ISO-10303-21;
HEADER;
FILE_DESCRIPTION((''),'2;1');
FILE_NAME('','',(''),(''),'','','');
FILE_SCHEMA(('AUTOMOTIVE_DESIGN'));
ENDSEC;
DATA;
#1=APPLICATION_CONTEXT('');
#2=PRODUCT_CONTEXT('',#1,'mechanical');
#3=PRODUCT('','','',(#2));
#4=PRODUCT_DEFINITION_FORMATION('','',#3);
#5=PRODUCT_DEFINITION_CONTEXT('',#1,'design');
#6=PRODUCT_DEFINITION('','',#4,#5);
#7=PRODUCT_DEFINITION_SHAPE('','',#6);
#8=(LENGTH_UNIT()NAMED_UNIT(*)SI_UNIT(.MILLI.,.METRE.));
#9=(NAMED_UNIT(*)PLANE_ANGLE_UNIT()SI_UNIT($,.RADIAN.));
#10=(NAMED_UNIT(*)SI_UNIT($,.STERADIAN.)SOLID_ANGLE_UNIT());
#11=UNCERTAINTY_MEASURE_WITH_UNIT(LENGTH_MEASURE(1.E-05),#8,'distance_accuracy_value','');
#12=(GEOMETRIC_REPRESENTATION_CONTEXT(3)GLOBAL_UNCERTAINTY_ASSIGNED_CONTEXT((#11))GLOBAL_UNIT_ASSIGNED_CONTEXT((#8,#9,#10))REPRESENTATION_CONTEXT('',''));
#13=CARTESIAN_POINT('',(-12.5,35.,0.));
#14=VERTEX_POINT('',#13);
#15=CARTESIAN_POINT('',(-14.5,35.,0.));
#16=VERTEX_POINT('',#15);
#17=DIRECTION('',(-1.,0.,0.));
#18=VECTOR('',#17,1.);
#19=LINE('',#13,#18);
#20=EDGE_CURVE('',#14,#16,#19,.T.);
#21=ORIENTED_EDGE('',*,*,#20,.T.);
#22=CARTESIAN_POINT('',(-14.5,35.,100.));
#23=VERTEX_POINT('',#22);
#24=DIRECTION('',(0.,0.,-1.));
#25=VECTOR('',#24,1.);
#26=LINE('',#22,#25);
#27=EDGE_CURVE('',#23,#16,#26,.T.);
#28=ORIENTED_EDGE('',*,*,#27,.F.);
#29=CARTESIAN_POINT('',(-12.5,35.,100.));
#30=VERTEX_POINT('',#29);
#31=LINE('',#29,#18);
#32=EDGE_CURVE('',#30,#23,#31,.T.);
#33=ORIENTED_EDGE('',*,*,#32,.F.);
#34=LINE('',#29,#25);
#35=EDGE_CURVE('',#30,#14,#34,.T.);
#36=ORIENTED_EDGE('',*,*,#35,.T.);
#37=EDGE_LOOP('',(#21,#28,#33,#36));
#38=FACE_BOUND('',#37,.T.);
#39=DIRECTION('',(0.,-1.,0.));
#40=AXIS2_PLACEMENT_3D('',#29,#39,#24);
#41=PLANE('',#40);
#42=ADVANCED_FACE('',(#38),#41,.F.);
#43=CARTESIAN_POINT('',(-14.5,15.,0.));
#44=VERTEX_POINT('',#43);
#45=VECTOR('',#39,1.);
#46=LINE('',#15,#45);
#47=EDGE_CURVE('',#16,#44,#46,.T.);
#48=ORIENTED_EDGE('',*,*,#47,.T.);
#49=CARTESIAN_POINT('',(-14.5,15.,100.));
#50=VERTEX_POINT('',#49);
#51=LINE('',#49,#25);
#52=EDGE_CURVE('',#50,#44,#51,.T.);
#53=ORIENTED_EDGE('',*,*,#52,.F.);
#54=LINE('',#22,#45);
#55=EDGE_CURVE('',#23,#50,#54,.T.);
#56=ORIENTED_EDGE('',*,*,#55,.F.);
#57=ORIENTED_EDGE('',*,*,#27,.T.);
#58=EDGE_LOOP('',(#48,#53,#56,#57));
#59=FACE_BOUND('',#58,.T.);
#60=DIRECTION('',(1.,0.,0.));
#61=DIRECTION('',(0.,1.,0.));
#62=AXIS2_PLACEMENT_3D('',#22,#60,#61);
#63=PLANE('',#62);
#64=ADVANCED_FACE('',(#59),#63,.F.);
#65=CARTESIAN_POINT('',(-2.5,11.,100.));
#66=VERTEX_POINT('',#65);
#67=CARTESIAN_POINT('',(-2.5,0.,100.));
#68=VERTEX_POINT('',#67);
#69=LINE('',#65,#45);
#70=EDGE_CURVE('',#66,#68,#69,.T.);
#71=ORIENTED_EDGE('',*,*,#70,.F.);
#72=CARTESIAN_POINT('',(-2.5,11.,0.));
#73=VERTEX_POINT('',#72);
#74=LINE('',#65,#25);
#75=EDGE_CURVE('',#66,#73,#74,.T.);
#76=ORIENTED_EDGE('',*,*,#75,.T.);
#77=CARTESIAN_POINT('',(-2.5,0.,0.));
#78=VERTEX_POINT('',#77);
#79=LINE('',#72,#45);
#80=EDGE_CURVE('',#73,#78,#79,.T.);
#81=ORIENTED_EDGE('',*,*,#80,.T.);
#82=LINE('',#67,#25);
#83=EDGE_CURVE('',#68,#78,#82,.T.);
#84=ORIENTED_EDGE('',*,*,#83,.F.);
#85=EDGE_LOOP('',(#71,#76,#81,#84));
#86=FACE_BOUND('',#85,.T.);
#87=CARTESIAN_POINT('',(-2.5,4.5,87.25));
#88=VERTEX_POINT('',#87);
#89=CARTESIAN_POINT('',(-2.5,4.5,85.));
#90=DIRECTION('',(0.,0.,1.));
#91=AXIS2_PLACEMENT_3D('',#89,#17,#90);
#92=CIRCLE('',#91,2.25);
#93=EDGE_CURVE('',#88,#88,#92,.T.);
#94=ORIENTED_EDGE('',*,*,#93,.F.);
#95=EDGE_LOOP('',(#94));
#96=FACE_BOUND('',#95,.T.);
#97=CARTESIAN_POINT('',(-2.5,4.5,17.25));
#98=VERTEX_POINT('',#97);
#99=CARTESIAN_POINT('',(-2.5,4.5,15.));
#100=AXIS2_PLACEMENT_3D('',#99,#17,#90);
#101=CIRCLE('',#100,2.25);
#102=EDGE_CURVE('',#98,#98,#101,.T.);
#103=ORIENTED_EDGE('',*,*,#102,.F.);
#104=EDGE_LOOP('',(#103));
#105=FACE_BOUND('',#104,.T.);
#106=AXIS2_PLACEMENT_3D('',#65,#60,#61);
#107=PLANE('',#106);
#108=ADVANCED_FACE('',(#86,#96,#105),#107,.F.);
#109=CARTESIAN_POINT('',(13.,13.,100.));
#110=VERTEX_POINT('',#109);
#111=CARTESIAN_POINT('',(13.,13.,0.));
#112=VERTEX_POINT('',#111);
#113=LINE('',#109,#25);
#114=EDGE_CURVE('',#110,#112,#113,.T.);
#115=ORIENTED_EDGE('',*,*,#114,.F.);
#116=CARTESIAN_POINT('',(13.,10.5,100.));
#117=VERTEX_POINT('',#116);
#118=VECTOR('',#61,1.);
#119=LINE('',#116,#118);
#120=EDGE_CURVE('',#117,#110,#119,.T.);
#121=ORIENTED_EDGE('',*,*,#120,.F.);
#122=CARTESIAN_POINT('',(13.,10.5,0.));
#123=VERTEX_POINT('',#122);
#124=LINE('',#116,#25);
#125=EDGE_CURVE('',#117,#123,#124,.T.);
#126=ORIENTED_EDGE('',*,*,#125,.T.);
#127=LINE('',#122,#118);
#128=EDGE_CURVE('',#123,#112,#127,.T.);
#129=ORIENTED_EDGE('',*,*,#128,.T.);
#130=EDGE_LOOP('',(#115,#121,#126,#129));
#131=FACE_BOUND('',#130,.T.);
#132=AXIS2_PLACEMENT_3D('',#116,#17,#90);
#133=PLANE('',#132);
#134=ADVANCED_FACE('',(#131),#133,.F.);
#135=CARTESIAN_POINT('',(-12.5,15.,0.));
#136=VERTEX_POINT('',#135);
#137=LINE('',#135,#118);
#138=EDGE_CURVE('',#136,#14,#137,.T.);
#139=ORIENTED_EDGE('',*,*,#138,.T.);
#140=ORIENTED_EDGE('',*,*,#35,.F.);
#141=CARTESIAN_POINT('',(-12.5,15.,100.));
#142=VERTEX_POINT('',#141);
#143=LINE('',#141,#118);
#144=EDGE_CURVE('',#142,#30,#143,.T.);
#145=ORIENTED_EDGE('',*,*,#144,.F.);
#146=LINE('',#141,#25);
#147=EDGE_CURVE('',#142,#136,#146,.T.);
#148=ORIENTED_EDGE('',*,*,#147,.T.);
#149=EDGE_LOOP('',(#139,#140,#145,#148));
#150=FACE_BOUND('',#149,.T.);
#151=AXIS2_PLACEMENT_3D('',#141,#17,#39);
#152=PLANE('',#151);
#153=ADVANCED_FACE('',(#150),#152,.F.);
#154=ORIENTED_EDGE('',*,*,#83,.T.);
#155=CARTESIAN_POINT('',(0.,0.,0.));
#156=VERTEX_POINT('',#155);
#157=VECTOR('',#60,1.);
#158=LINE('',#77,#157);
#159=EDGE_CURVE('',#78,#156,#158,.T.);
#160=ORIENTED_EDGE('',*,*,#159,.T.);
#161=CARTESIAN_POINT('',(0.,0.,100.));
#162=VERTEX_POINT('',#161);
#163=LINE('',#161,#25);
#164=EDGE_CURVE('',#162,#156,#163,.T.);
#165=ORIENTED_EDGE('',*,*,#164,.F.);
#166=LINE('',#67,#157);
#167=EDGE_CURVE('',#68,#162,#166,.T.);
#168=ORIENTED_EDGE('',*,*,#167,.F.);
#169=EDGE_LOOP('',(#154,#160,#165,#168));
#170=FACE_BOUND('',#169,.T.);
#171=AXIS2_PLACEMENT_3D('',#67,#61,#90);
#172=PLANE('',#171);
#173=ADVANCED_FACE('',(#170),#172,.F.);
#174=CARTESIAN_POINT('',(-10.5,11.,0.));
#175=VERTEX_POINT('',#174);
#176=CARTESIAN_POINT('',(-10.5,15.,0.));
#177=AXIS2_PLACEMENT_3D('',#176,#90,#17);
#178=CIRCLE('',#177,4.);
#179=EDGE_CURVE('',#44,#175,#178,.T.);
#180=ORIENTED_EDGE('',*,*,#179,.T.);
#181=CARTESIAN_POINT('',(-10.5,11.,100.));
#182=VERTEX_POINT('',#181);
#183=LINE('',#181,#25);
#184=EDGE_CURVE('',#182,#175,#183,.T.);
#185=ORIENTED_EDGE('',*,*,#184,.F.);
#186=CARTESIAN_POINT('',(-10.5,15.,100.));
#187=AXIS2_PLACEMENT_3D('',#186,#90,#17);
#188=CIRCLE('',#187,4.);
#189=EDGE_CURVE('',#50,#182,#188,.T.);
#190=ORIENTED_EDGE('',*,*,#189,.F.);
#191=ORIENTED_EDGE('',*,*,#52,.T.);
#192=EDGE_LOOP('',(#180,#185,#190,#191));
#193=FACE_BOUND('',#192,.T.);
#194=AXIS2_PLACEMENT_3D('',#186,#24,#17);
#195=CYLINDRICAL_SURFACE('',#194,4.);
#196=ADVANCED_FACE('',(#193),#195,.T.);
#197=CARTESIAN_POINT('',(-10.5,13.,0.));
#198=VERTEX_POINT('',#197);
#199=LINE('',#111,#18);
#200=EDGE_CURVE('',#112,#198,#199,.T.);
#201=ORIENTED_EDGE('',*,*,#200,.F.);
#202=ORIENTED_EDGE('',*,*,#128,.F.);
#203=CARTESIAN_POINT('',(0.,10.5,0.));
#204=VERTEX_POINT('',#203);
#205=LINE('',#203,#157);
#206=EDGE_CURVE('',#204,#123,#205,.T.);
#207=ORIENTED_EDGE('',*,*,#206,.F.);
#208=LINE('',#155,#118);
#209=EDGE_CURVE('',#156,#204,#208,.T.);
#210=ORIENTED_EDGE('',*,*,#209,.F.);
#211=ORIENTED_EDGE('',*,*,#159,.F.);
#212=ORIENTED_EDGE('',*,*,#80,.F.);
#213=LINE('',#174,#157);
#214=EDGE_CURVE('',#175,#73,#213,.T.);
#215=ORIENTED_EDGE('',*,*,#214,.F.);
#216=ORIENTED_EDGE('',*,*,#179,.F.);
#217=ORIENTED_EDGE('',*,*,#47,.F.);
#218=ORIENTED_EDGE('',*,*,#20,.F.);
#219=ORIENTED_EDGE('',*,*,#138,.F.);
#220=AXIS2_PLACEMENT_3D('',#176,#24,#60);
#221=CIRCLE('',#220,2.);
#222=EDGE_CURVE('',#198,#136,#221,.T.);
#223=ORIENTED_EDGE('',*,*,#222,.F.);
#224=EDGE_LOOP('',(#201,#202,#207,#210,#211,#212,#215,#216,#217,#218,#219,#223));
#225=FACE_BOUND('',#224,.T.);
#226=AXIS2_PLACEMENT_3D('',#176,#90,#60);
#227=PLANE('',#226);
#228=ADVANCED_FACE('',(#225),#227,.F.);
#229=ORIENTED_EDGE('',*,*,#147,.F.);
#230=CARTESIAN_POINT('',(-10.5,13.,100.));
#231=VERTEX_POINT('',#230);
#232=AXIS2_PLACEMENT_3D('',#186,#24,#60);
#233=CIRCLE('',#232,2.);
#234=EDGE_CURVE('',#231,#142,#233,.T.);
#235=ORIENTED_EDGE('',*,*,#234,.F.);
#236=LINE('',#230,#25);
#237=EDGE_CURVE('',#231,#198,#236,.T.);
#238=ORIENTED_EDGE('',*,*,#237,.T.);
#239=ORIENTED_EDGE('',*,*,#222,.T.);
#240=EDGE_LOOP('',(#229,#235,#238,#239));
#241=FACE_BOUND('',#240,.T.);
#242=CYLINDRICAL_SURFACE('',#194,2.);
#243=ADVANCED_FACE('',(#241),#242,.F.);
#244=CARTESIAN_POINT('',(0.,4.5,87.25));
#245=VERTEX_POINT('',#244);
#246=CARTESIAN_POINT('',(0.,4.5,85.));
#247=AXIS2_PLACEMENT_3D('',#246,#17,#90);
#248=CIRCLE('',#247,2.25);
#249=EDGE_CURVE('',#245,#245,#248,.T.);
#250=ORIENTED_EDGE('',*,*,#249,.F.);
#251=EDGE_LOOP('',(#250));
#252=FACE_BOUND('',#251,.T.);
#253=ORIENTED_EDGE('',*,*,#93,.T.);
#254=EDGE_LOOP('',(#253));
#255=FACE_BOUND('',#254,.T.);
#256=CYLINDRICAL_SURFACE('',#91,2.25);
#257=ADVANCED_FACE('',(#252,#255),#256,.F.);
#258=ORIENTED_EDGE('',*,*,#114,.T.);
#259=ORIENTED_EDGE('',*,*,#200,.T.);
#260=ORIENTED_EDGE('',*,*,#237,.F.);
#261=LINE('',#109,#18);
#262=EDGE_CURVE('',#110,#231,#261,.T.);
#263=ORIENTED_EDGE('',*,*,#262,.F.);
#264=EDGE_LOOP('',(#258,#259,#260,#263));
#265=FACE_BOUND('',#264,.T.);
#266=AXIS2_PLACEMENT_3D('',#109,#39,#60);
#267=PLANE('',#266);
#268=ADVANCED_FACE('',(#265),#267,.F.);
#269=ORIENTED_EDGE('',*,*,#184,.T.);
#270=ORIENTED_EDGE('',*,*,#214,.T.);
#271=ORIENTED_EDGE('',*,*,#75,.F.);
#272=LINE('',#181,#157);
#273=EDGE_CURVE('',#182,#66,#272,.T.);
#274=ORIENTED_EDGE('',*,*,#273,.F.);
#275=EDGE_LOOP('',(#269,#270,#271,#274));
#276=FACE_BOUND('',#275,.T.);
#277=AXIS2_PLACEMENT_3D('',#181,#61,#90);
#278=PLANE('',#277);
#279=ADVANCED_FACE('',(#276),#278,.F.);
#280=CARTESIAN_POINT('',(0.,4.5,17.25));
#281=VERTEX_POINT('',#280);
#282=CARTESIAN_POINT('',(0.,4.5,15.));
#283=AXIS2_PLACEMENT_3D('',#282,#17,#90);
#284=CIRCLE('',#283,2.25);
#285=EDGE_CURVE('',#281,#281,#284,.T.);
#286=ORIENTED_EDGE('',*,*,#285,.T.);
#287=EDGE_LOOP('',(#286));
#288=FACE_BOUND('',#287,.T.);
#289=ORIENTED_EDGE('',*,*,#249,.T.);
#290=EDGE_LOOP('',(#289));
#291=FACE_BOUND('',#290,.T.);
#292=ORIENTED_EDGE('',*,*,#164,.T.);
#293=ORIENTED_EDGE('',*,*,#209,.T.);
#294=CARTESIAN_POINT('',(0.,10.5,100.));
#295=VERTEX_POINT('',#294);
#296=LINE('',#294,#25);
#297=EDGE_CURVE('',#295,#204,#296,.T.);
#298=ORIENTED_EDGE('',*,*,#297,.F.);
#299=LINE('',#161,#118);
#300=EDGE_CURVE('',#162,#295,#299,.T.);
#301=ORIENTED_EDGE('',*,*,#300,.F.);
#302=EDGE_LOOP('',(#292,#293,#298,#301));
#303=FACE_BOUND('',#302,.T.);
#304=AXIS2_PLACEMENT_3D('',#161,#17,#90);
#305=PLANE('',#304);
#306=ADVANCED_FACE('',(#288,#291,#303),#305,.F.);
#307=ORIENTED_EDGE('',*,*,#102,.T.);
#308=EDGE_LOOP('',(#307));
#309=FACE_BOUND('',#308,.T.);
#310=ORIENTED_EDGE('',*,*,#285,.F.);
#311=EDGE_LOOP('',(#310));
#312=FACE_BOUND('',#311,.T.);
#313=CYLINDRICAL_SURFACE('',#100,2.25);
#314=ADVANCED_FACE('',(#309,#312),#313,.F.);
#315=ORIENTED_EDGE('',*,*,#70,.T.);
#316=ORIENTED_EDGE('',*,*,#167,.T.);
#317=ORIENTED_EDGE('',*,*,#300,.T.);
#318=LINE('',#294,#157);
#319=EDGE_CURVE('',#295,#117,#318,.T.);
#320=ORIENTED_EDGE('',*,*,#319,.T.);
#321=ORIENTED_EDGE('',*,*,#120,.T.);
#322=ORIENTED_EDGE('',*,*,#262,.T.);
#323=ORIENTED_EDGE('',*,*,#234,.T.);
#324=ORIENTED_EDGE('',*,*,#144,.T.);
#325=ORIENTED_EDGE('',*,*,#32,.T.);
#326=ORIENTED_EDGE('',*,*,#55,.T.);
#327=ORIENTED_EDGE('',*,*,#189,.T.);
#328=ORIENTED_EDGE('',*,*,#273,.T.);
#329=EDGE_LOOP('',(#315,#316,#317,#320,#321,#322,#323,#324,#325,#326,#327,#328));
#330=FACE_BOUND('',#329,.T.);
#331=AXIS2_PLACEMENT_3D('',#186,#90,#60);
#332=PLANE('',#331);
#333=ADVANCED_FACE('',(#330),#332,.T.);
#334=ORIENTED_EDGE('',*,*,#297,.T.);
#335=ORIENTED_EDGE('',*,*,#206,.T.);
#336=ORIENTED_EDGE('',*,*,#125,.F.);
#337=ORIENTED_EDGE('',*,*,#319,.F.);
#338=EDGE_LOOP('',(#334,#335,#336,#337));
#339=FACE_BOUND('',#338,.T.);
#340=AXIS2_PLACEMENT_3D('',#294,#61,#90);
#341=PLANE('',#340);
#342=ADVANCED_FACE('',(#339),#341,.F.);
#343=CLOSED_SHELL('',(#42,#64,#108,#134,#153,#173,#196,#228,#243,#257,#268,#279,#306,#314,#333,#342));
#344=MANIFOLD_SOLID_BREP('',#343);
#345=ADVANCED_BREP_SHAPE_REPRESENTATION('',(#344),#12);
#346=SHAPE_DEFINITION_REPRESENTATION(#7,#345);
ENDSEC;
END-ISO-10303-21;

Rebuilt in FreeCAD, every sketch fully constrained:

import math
import FreeCAD as App
import Part
import Sketcher
from FreeCAD import Vector

doc = App.newDocument("Part")
body = doc.addObject("PartDesign::Body", "Body")

sketch1 = doc.addObject("Sketcher::SketchObject", "Sketch")
body.addObject(sketch1)
sketch1.AttachmentSupport = (doc.XY_Plane, [""])
sketch1.MapMode = "FlatFace"
sketch1.addGeometry([
    Part.LineSegment(Vector(-2.5, 0, 0), Vector(0, 0, 0)),
    Part.LineSegment(Vector(0, 0, 0), Vector(0, 10.5, 0)),
    Part.LineSegment(Vector(0, 10.5, 0), Vector(13, 10.5, 0)),
    Part.LineSegment(Vector(13, 10.5, 0), Vector(13, 13, 0)),
    Part.LineSegment(Vector(13, 13, 0), Vector(-10.5, 13, 0)),
    Part.ArcOfCircle(Part.Circle(Vector(-10.5, 15, 0), Vector(0, 0, 1), 2), math.radians(-180), math.radians(-90)),
    Part.LineSegment(Vector(-12.5, 15, 0), Vector(-12.5, 35, 0)),
    Part.LineSegment(Vector(-12.5, 35, 0), Vector(-14.5, 35, 0)),
    Part.LineSegment(Vector(-14.5, 35, 0), Vector(-14.5, 15, 0)),
    Part.ArcOfCircle(Part.Circle(Vector(-10.5, 15, 0), Vector(0, 0, 1), 4), math.radians(180), math.radians(270)),
    Part.LineSegment(Vector(-10.5, 11, 0), Vector(-2.5, 11, 0)),
    Part.LineSegment(Vector(-2.5, 11, 0), Vector(-2.5, 0, 0)),
], False)
sketch1.addConstraint([
    Sketcher.Constraint("Coincident", 0, 2, 1, 1),
    Sketcher.Constraint("Coincident", 1, 2, 2, 1),
    Sketcher.Constraint("Coincident", 2, 2, 3, 1),
    Sketcher.Constraint("Coincident", 3, 2, 4, 1),
    Sketcher.Constraint("Tangent", 4, 2, 5, 2),
    Sketcher.Constraint("Tangent", 5, 1, 6, 1),
    Sketcher.Constraint("Coincident", 6, 2, 7, 1),
    Sketcher.Constraint("Coincident", 7, 2, 8, 1),
    Sketcher.Constraint("Tangent", 8, 2, 9, 1),
    Sketcher.Constraint("Tangent", 9, 2, 10, 1),
    Sketcher.Constraint("Coincident", 10, 2, 11, 1),
    Sketcher.Constraint("Coincident", 11, 2, 0, 1),
    Sketcher.Constraint("Horizontal", 0),
    Sketcher.Constraint("Vertical", 1),
    Sketcher.Constraint("Horizontal", 2),
    Sketcher.Constraint("Vertical", 3),
    Sketcher.Constraint("Horizontal", 4),
    Sketcher.Constraint("Vertical", 6),
    Sketcher.Constraint("Horizontal", 7),
    Sketcher.Constraint("Vertical", 8),
    Sketcher.Constraint("Horizontal", 10),
    Sketcher.Constraint("Vertical", 11),
    Sketcher.Constraint("Coincident", 0, 2, -1, 1),
    Sketcher.Constraint("Coincident", 9, 3, 5, 3),
    Sketcher.Constraint("Equal", 0, 3),
    Sketcher.Constraint("Radius", 5, 2.0),
    Sketcher.Constraint("Radius", 9, 4.0),
    Sketcher.Constraint("DistanceX", 2, 1, 2, 2, 13.0),
    Sketcher.Constraint("DistanceX", 10, 1, 10, 2, 8.0),
    Sketcher.Constraint("DistanceY", 6, 1, 6, 2, 20.0),
    Sketcher.Constraint("DistanceY", 11, 2, 11, 1, 11.0),
    Sketcher.Constraint("DistanceX", 0, 1, 0, 2, 2.5),
])
pad1 = doc.addObject("PartDesign::Pad", "Pad")
body.addObject(pad1)
pad1.Profile = sketch1
pad1.Length = 100

sketch2 = doc.addObject("Sketcher::SketchObject", "Sketch001")
body.addObject(sketch2)
sketch2.AttachmentSupport = (doc.YZ_Plane, [""])
sketch2.MapMode = "FlatFace"
sketch2.AttachmentOffset = App.Placement(Vector(0, 0, -2.5), App.Rotation())
sketch2.addGeometry([
    Part.Circle(Vector(4.5, 15, 0), Vector(0, 0, 1), 2.2),
    Part.Circle(Vector(4.5, 85, 0), Vector(0, 0, 1), 2.2),
], False)
sketch2.addConstraint([
    Sketcher.Constraint("Equal", 0, 1),
    Sketcher.Constraint("Vertical", 0, 3, 1, 3),
    Sketcher.Constraint("Diameter", 0, 4.5),
    Sketcher.Constraint("DistanceY", -1, 1, 0, 3, 15.0),
    Sketcher.Constraint("DistanceY", -1, 1, 1, 3, 85.0),
    Sketcher.Constraint("DistanceX", -1, 1, 0, 3, 4.5),
])
doc.recompute()
hole = doc.addObject("PartDesign::Hole", "Hole")
body.addObject(hole)
hole.Profile = sketch2
hole.ThreadType = "None"
hole.Diameter = 4.5
hole.DepthType = "Dimension"
hole.Depth = 30
hole.DrillPoint = "Angled"
hole.DrillPointAngle = 118
hole.Reversed = True

doc.recompute()
